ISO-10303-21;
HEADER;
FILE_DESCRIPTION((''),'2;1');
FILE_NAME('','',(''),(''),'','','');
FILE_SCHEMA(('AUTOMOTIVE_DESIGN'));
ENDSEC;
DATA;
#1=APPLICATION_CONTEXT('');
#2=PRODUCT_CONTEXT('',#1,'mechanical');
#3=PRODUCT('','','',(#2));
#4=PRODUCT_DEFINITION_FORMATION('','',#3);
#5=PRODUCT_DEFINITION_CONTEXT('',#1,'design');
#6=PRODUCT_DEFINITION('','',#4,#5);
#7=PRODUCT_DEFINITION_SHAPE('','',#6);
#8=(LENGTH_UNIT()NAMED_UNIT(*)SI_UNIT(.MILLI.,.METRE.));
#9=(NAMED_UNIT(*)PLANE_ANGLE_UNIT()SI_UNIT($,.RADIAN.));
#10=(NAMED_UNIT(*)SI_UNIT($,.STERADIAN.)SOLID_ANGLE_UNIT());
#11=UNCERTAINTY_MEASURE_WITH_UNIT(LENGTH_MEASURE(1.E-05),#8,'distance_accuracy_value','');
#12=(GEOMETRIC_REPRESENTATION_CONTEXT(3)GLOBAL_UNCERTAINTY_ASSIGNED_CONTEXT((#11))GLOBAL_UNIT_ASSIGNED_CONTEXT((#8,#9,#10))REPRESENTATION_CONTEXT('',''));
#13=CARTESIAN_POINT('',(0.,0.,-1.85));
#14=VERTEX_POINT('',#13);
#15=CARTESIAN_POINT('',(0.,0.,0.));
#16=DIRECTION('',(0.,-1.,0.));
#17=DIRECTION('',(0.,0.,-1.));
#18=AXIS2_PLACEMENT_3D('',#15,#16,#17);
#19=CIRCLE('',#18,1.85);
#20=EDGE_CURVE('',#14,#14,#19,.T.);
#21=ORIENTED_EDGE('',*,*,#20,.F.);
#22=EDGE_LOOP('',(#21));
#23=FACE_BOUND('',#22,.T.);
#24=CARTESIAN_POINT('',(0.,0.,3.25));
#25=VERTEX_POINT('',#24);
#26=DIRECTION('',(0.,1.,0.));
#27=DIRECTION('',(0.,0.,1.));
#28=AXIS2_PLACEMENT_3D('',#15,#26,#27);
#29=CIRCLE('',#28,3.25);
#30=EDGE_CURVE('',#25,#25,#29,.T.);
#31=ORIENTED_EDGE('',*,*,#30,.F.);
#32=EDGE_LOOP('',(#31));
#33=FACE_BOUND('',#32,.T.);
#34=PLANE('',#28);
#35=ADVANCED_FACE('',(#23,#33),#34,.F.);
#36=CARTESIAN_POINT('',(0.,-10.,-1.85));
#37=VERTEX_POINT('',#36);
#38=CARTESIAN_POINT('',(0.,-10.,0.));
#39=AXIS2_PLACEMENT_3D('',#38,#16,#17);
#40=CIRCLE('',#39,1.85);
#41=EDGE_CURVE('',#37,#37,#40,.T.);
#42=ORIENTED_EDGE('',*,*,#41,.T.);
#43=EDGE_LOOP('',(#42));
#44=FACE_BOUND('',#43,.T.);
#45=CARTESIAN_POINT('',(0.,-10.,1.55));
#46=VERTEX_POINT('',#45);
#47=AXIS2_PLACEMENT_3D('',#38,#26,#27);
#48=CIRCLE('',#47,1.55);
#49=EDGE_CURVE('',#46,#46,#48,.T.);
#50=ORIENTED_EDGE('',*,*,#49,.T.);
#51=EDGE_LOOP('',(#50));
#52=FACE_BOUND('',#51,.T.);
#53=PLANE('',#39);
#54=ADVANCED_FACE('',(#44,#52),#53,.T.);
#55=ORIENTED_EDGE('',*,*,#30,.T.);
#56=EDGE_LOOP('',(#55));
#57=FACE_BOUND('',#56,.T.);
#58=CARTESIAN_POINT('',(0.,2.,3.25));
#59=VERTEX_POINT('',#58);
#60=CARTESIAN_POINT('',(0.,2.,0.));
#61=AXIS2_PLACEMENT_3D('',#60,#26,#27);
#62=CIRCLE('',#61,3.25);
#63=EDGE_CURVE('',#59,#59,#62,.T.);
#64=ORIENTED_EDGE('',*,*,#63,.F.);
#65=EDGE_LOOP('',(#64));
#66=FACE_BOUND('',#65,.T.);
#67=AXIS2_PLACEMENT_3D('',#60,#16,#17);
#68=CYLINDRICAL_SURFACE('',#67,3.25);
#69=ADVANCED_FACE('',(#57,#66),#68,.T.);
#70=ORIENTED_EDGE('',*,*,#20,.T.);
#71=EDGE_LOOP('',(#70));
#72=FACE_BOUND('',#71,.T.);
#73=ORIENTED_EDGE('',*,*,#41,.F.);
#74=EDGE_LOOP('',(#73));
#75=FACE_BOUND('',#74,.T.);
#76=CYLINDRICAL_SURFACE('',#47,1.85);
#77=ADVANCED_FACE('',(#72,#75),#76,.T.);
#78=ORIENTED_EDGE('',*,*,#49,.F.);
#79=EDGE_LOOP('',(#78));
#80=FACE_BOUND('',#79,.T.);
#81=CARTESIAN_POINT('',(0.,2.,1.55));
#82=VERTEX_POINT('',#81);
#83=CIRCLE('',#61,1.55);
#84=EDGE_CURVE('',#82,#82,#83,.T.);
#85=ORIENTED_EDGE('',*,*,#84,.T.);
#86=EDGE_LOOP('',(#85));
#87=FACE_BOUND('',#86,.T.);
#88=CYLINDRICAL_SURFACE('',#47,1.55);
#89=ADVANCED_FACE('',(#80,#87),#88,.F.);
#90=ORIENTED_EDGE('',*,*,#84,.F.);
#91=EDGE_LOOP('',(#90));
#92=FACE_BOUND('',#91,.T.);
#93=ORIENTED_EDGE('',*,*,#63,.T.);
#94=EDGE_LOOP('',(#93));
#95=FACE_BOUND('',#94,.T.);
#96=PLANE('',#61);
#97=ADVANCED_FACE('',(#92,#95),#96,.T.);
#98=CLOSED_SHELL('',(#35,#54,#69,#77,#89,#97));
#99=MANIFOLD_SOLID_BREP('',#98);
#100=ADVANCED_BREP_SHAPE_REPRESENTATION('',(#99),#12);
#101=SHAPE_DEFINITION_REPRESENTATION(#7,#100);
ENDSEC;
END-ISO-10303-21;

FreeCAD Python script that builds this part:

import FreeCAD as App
import Part
import Sketcher
Q = App.Units.Quantity

doc = App.newDocument("Part")
body = doc.addObject("PartDesign::Body", "Body")

# Sketch on XZ plane
sketch1 = body.newObject("Sketcher::SketchObject", "Sketch")
sketch1.AttachmentSupport = (doc.getObject("XZ_Plane"), [""])
sketch1.MapMode = "FlatFace"
sketch1.addGeometry(Part.Circle(App.Vector(0, 0, 0), App.Vector(0, 0, 1), 3.25), False)
sketch1.addConstraint(Sketcher.Constraint("Coincident", 0, 3, -1, 1))
sketch1.addConstraint(Sketcher.Constraint("Diameter", 0, Q("6.5 mm")))
pad1 = body.newObject("PartDesign::Pad", "Pad")
pad1.Profile = sketch1
pad1.Length = 2
pad1.Reversed = True

# Sketch on XZ plane
sketch2 = body.newObject("Sketcher::SketchObject", "Sketch001")
sketch2.AttachmentSupport = (doc.getObject("XZ_Plane"), [""])
sketch2.MapMode = "FlatFace"
sketch2.addGeometry(Part.Circle(App.Vector(0, 0, 0), App.Vector(0, 0, 1), 1.85), False)
sketch2.addConstraint(Sketcher.Constraint("Coincident", 0, 3, -1, 1))
sketch2.addConstraint(Sketcher.Constraint("Diameter", 0, Q("3.7 mm")))
pad2 = body.newObject("PartDesign::Pad", "Pad001")
pad2.Profile = sketch2
pad2.Length = 10

# Sketch on XZ plane
sketch3 = body.newObject("Sketcher::SketchObject", "Sketch002")
sketch3.AttachmentSupport = (doc.getObject("XZ_Plane"), [""])
sketch3.MapMode = "FlatFace"
sketch3.AttachmentOffset = App.Placement(App.Vector(0, 0, -2), App.Rotation())
sketch3.addGeometry(Part.Circle(App.Vector(0, 0, 0), App.Vector(0, 0, 1), 1.55), False)
sketch3.addConstraint(Sketcher.Constraint("Coincident", 0, 3, -1, 1))
sketch3.addConstraint(Sketcher.Constraint("Diameter", 0, Q("3.1 mm")))
pocket1 = body.newObject("PartDesign::Pocket", "Pocket")
pocket1.Profile = sketch3
pocket1.Type = "ThroughAll"
pocket1.Reversed = True

doc.recompute()
